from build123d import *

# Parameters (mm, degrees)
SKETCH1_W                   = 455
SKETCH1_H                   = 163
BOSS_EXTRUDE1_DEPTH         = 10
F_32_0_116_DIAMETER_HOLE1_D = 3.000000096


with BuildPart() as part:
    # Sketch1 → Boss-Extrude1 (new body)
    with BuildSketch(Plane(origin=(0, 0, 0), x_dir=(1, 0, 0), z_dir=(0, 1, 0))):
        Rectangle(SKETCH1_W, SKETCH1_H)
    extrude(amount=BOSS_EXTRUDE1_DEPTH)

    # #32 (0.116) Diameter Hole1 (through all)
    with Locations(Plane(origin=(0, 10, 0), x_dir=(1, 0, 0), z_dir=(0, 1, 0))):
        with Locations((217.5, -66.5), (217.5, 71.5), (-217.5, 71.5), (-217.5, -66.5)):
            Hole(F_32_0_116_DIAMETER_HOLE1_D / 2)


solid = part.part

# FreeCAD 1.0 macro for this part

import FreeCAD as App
import Part
import Sketcher
from FreeCAD import Vector

doc = App.newDocument("Part")
body = doc.addObject("PartDesign::Body", "Body")

# Sketch on XZ plane
sketch1 = body.newObject("Sketcher::SketchObject", "Sketch")
sketch1.AttachmentSupport = (doc.getObject("XZ_Plane"), [""])
sketch1.MapMode = "FlatFace"
sketch1.addGeometry(Part.LineSegment(Vector(-227.5, -81.5, 0), Vector(-227.5, 81.5, 0)), False)
sketch1.addGeometry(Part.LineSegment(Vector(-227.5, 81.5, 0), Vector(227.5, 81.5, 0)), False)
sketch1.addGeometry(Part.LineSegment(Vector(227.5, 81.5, 0), Vector(227.5, -81.5, 0)), False)
sketch1.addGeometry(Part.LineSegment(Vector(227.5, -81.5, 0), Vector(-227.5, -81.5, 0)), False)
sketch1.addConstraint(Sketcher.Constraint("Coincident", 0, 2, 1, 1))
sketch1.addConstraint(Sketcher.Constraint("Coincident", 1, 2, 2, 1))
sketch1.addConstraint(Sketcher.Constraint("Coincident", 2, 2, 3, 1))
sketch1.addConstraint(Sketcher.Constraint("Coincident", 3, 2, 0, 1))
sketch1.addConstraint(Sketcher.Constraint("Vertical", 0))
sketch1.addConstraint(Sketcher.Constraint("Horizontal", 1))
sketch1.addConstraint(Sketcher.Constraint("Vertical", 2))
sketch1.addConstraint(Sketcher.Constraint("Horizontal", 3))
sketch1.addConstraint(Sketcher.Constraint("Symmetric", 0, 2, 2, 2, -1, 1))
sketch1.addConstraint(Sketcher.Constraint("DistanceX", 1, 1, 1, 2, 455.0))
sketch1.addConstraint(Sketcher.Constraint("DistanceY", 0, 1, 0, 2, 163.0))
pad1 = body.newObject("PartDesign::Pad", "Pad")
pad1.Profile = sketch1
pad1.Length = 10
pad1.Reversed = True

# Sketch on XZ plane
sketch2 = body.newObject("Sketcher::SketchObject", "Sketch001")
sketch2.AttachmentSupport = (doc.getObject("XZ_Plane"), [""])
sketch2.MapMode = "FlatFace"
sketch2.AttachmentOffset = App.Placement(Vector(0, 0, -10), App.Rotation())
sketch2.addGeometry(Part.Circle(Vector(217.5, 66.5, 0), Vector(0, 0, 1), 1.5), False)
sketch2.addGeometry(Part.Circle(Vector(217.5, -71.5, 0), Vector(0, 0, 1), 1.5), False)
sketch2.addGeometry(Part.Circle(Vector(-217.5, -71.5, 0), Vector(0, 0, 1), 1.5), False)
sketch2.addGeometry(Part.Circle(Vector(-217.5, 66.5, 0), Vector(0, 0, 1), 1.5), False)
sketch2.addConstraint(Sketcher.Constraint("Equal", 0, 1))
sketch2.addConstraint(Sketcher.Constraint("Equal", 1, 2))
sketch2.addConstraint(Sketcher.Constraint("Equal", 2, 3))
sketch2.addConstraint(Sketcher.Constraint("Symmetric", 1, 3, 2, 3, -2))
sketch2.addConstraint(Sketcher.Constraint("Symmetric", 0, 3, 3, 3, -2))
sketch2.addConstraint(Sketcher.Constraint("Vertical", 0, 3, 1, 3))
sketch2.addConstraint(Sketcher.Constraint("Diameter", 0, 3.0))
sketch2.addConstraint(Sketcher.Constraint("DistanceY", 1, 3, 0, 3, 138.0))
sketch2.addConstraint(Sketcher.Constraint("DistanceX", 2, 3, 1, 3, 435.0))
sketch2.addConstraint(Sketcher.Constraint("DistanceY", -1, 1, 0, 3, 66.5))
doc.recompute()
hole = body.newObject("PartDesign::Hole", "Hole")
hole.Profile = sketch2
hole.ThreadType = "None"
hole.Diameter = 3
hole.DepthType = "ThroughAll"
hole.Reversed = True

doc.recompute()
